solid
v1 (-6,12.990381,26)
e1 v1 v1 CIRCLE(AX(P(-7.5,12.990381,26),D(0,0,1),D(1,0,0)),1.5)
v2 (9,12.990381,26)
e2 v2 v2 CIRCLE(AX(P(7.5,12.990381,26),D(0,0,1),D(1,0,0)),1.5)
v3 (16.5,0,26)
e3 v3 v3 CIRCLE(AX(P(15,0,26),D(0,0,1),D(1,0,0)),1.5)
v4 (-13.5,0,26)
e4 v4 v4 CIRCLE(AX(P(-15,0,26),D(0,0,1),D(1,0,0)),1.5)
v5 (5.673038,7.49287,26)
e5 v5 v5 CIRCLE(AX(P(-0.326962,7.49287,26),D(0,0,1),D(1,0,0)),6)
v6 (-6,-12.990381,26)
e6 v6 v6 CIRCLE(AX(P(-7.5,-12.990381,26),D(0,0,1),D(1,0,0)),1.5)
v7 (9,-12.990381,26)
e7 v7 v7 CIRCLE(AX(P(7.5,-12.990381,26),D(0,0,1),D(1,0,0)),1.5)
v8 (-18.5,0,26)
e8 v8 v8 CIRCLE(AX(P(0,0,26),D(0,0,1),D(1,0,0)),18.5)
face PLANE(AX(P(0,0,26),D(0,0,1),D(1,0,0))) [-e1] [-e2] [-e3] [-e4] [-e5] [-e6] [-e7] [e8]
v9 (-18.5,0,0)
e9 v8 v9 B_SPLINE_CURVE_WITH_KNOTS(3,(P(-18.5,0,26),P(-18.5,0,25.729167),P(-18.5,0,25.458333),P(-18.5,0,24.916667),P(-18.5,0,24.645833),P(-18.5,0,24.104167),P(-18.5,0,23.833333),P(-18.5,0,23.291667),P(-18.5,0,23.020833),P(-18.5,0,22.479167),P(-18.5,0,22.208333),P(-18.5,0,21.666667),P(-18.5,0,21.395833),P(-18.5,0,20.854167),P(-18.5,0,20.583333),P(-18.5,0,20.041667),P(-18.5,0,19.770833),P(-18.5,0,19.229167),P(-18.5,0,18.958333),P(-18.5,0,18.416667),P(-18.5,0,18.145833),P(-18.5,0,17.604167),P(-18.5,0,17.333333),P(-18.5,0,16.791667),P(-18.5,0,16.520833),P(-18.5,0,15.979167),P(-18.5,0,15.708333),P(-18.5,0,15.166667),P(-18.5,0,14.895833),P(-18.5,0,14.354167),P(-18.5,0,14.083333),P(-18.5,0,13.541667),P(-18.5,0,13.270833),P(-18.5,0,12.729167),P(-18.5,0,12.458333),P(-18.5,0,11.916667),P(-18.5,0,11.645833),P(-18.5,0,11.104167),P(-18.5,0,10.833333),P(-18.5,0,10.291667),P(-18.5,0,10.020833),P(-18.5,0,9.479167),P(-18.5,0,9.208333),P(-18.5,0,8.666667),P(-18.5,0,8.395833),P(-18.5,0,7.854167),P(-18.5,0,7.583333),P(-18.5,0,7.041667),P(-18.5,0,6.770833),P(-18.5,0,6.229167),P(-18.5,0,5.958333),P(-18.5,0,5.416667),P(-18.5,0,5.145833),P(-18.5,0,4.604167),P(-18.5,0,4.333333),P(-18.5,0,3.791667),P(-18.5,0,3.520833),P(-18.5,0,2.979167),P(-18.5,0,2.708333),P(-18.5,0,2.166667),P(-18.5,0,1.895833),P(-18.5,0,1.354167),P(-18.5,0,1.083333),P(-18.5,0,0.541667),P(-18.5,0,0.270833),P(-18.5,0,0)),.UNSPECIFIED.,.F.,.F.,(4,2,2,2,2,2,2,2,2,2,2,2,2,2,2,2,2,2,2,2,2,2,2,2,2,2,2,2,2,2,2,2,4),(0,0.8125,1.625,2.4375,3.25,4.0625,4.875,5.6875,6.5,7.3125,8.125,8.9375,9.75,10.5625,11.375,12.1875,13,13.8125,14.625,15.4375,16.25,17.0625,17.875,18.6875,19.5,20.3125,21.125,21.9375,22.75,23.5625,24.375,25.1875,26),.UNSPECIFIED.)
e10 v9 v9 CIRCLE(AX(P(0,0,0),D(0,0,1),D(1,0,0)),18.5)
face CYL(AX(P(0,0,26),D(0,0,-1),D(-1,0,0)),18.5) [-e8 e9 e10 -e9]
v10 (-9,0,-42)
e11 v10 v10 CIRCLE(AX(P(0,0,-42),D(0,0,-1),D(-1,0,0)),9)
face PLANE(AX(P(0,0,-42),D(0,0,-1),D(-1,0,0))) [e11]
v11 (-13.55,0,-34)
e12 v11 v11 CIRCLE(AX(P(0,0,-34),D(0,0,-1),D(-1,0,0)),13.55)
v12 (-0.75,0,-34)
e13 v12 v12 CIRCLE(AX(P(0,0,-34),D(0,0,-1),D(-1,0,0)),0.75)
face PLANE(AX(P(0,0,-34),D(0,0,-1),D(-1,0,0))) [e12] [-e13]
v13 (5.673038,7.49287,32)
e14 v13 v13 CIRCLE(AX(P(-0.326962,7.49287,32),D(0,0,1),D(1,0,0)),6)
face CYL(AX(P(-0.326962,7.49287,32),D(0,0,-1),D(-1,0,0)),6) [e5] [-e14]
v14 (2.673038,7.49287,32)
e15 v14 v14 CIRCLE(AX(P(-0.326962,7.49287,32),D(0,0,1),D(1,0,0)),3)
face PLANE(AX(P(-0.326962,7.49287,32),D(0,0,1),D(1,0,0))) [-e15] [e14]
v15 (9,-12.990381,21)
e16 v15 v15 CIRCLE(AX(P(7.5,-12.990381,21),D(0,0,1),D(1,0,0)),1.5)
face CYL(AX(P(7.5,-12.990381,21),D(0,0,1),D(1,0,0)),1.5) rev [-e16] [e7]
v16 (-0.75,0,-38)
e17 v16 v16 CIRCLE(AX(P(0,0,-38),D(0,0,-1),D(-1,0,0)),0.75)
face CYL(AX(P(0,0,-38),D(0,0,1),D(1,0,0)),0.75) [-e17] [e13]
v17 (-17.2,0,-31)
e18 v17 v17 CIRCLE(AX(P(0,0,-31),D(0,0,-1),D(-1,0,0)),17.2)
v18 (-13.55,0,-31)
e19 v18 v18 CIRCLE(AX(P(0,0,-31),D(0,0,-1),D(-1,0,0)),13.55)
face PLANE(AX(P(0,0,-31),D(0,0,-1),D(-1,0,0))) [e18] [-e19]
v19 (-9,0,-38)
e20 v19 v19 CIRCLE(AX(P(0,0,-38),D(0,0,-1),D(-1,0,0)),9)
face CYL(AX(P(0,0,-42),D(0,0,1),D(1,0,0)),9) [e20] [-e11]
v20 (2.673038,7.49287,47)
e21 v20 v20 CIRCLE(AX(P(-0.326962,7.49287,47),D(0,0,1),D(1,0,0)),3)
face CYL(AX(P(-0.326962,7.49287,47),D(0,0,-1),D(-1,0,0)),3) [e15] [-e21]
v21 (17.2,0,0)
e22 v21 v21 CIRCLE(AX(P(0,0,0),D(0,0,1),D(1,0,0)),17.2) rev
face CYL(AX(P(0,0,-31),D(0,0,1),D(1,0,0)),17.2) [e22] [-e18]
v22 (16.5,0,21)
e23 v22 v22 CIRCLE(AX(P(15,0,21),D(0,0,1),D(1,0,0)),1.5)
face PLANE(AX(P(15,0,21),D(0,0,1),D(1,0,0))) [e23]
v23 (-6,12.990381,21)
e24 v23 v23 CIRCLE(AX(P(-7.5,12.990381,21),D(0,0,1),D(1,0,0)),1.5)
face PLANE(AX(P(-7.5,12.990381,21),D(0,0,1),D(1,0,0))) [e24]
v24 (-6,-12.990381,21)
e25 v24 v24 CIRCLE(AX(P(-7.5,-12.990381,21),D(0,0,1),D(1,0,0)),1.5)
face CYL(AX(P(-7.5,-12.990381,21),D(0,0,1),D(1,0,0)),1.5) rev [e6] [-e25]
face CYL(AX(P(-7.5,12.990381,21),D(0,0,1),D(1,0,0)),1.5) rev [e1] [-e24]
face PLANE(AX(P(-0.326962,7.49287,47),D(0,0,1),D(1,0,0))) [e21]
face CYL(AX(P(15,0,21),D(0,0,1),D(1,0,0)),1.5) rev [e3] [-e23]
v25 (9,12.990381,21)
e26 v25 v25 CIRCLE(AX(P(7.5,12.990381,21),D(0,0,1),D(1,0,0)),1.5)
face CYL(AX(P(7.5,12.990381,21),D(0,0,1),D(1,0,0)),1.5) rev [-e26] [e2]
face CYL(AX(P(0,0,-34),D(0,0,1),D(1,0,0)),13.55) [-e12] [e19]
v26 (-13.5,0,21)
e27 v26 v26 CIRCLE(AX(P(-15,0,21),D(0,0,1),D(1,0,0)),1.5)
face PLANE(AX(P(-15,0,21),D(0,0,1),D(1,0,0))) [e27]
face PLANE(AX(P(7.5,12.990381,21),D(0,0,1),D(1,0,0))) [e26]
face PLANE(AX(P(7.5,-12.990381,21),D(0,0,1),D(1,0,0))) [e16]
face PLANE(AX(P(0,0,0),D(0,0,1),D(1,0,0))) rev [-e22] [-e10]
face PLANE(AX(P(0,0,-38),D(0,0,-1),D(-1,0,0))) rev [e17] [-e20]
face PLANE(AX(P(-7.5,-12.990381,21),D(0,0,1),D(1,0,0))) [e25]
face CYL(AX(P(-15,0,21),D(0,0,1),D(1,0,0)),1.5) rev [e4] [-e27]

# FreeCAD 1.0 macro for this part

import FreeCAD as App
import Part
import Sketcher

doc = App.newDocument("Part")
body = doc.addObject("PartDesign::Body", "Body")

sketch1 = body.newObject("Sketcher::SketchObject", "Sketch")
sketch1.AttachmentSupport = (doc.getObject("XY_Plane"), [""])
sketch1.MapMode = "FlatFace"
sketch1.addGeometry(Part.Circle(App.Vector(0, 0, 0), App.Vector(0, 0, 1), 18), False)
sketch1.addConstraint([
    Sketcher.Constraint("Coincident", 0, 3, -1, 1),
    Sketcher.Constraint("Diameter", 0, 37.0),
])
pad1 = body.newObject("PartDesign::Pad", "Pad")
pad1.Profile = sketch1
pad1.Length = 26

sketch2 = body.newObject("Sketcher::SketchObject", "Sketch001")
sketch2.AttachmentSupport = (doc.getObject("XY_Plane"), [""])
sketch2.MapMode = "FlatFace"
sketch2.addGeometry(Part.Circle(App.Vector(0, 0, 0), App.Vector(0, 0, 1), 17), False)
sketch2.addConstraint([
    Sketcher.Constraint("Coincident", 0, 3, -1, 1),
    Sketcher.Constraint("Diameter", 0, 34.4),
])
pad2 = body.newObject("PartDesign::Pad", "Pad001")
pad2.Profile = sketch2
pad2.Length = 31
pad2.Reversed = True

sketch3 = body.newObject("Sketcher::SketchObject", "Sketch002")
sketch3.AttachmentSupport = (doc.getObject("XY_Plane"), [""])
sketch3.MapMode = "FlatFace"
sketch3.AttachmentOffset = App.Placement(App.Vector(0, 0, -31), App.Rotation())
sketch3.addGeometry(Part.Circle(App.Vector(0, 0, 0), App.Vector(0, 0, 1), 14), False)
sketch3.addConstraint([
    Sketcher.Constraint("Coincident", 0, 3, -1, 1),
    Sketcher.Constraint("Diameter", 0, 27.1),
])
pad3 = body.newObject("PartDesign::Pad", "Pad002")
pad3.Profile = sketch3
pad3.Length = 3
pad3.Reversed = True

sketch4 = body.newObject("Sketcher::SketchObject", "Sketch003")
sketch4.AttachmentSupport = (doc.getObject("XY_Plane"), [""])
sketch4.MapMode = "FlatFace"
sketch4.AttachmentOffset = App.Placement(App.Vector(0, 0, -34), App.Rotation())
sketch4.addGeometry(Part.Circle(App.Vector(0, 0, 0), App.Vector(0, 0, 1), 0.8), False)
sketch4.addConstraint([
    Sketcher.Constraint("Coincident", 0, 3, -1, 1),
    Sketcher.Constraint("Diameter", 0, 1.5),
])
pad4 = body.newObject("PartDesign::Pad", "Pad003")
pad4.Profile = sketch4
pad4.Length = 4
pad4.Reversed = True

sketch5 = body.newObject("Sketcher::SketchObject", "Sketch004")
sketch5.AttachmentSupport = (doc.getObject("XY_Plane"), [""])
sketch5.MapMode = "FlatFace"
sketch5.AttachmentOffset = App.Placement(App.Vector(0, 0, -38), App.Rotation())
sketch5.addGeometry(Part.Circle(App.Vector(0, 0, 0), App.Vector(0, 0, 1), 9), False)
sketch5.addConstraint([
    Sketcher.Constraint("Coincident", 0, 3, -1, 1),
    Sketcher.Constraint("Diameter", 0, 18.0),
])
pad5 = body.newObject("PartDesign::Pad", "Pad004")
pad5.Profile = sketch5
pad5.Length = 4
pad5.Reversed = True

sketch6 = body.newObject("Sketcher::SketchObject", "Sketch005")
sketch6.AttachmentSupport = (doc.getObject("XY_Plane"), [""])
sketch6.MapMode = "FlatFace"
sketch6.AttachmentOffset = App.Placement(App.Vector(0, 0, 26), App.Rotation())
sketch6.addGeometry(Part.Circle(App.Vector(0, 7, 0), App.Vector(0, 0, 1), 6), False)
sketch6.addConstraint([
    Sketcher.Constraint("Diameter", 0, 12.0),
    Sketcher.Constraint("DistanceX", 0, 3, -1, 1, 0.326962),
    Sketcher.Constraint("DistanceY", -1, 1, 0, 3, 7.49287),
])
pad6 = body.newObject("PartDesign::Pad", "Pad005")
pad6.Profile = sketch6
pad6.Length = 6

sketch7 = body.newObject("Sketcher::SketchObject", "Sketch006")
sketch7.AttachmentSupport = (doc.getObject("XY_Plane"), [""])
sketch7.MapMode = "FlatFace"
sketch7.AttachmentOffset = App.Placement(App.Vector(0, 0, 32), App.Rotation())
sketch7.addGeometry(Part.Circle(App.Vector(-0.3, 7.5, 0), App.Vector(0, 0, 1), 3), False)
sketch7.addConstraint([
    Sketcher.Constraint("Diameter", 0, 6.0),
    Sketcher.Constraint("DistanceX", 0, 3, -1, 1, 0.326962),
    Sketcher.Constraint("DistanceY", -1, 1, 0, 3, 7.49287),
])
pad7 = body.newObject("PartDesign::Pad", "Pad006")
pad7.Profile = sketch7
pad7.Length = 15

sketch8 = body.newObject("Sketcher::SketchObject", "Sketch007")
sketch8.AttachmentSupport = (doc.getObject("XY_Plane"), [""])
sketch8.MapMode = "FlatFace"
sketch8.AttachmentOffset = App.Placement(App.Vector(0, 0, 26), App.Rotation())
sketch8.addGeometry([
    Part.Circle(App.Vector(15, 0, 0), App.Vector(0, 0, 1), 1.5),
    Part.Circle(App.Vector(7.5, -13, 0), App.Vector(0, 0, 1), 1.5),
    Part.Circle(App.Vector(-7.5, -13, 0), App.Vector(0, 0, 1), 1.5),
    Part.Circle(App.Vector(-15, 0, 0), App.Vector(0, 0, 1), 1.5),
    Part.Circle(App.Vector(-7.5, 13, 0), App.Vector(0, 0, 1), 1.5),
    Part.Circle(App.Vector(7.5, 13, 0), App.Vector(0, 0, 1), 1.5),
], False)
sketch8.addConstraint([
    Sketcher.Constraint("Equal", 0, 1),
    Sketcher.Constraint("Equal", 1, 2),
    Sketcher.Constraint("Equal", 2, 3),
    Sketcher.Constraint("Equal", 3, 4),
    Sketcher.Constraint("Equal", 4, 5),
    Sketcher.Constraint("Symmetric", 0, 3, 3, 3, -1, 1),
    Sketcher.Constraint("Symmetric", 1, 3, 4, 3, -1, 1),
    Sketcher.Constraint("Symmetric", 2, 3, 5, 3, -1, 1),
    Sketcher.Constraint("Symmetric", 1, 3, 2, 3, -2),
    Sketcher.Constraint("PointOnObject", 0, 3, -1),
    Sketcher.Constraint("Diameter", 0, 3.0),
    Sketcher.Constraint("DistanceX", -1, 1, 0, 3, 15.0),
    Sketcher.Constraint("DistanceX", 2, 3, 1, 3, 15.0),
    Sketcher.Constraint("DistanceY", 1, 3, -1, 1, 12.990381),
])
pocket1 = body.newObject("PartDesign::Pocket", "Pocket")
pocket1.Profile = sketch8
pocket1.Length = 5

doc.recompute()
